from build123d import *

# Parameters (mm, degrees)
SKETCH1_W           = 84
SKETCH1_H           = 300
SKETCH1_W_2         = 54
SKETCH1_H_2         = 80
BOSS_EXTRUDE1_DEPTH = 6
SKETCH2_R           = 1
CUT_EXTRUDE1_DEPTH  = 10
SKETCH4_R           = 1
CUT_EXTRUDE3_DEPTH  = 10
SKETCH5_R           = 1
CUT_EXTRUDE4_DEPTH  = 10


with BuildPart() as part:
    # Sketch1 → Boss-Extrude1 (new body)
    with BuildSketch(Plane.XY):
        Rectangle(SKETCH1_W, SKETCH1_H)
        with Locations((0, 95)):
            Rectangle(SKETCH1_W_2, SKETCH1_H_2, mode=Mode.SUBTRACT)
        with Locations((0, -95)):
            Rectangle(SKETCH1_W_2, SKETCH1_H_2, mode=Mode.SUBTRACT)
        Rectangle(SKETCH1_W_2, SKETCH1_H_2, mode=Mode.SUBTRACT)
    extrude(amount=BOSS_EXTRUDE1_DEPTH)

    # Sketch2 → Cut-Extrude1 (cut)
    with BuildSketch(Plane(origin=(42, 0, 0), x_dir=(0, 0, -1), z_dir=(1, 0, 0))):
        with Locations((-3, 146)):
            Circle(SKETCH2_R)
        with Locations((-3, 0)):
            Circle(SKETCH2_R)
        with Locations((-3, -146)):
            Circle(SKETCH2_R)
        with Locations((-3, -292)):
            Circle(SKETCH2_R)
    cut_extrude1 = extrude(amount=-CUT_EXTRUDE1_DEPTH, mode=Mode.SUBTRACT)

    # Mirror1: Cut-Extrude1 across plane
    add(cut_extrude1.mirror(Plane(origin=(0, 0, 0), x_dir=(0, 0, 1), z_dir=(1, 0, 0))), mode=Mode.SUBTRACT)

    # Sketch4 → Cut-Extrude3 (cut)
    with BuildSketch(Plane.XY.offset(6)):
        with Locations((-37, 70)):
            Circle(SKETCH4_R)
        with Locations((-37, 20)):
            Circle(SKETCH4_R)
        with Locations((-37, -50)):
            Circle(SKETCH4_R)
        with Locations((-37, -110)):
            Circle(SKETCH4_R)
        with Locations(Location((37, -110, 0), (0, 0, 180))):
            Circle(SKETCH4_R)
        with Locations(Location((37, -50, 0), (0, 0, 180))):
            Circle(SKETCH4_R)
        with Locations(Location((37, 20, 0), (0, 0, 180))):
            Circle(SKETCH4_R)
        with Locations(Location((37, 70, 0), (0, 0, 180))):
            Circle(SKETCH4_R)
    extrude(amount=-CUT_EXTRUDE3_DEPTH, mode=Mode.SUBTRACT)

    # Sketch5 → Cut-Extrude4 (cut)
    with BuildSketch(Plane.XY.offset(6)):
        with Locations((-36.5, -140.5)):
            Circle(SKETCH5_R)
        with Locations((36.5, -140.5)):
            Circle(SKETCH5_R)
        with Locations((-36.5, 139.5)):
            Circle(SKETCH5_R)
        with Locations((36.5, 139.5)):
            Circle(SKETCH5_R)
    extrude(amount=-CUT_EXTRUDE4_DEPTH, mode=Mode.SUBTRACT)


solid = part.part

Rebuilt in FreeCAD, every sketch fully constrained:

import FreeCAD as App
import Part
import Sketcher
from FreeCAD import Vector


def add_polygon(sketch, points):
    """Adds a closed chain of lines whose ends are joined by coincident constraints."""
    first, n = sketch.GeometryCount, len(points)
    for a, b in zip(points, points[1:] + points[:1]):
        sketch.addGeometry(Part.LineSegment(App.Vector(*a, 0), App.Vector(*b, 0)), False)
    for i in range(n):
        sketch.addConstraint(Sketcher.Constraint("Coincident", first + i, 2, first + (i + 1) % n, 1))

doc = App.newDocument("Part")
body = doc.addObject("PartDesign::Body", "Body")

sketch1 = doc.addObject("Sketcher::SketchObject", "Sketch")
body.addObject(sketch1)
sketch1.AttachmentSupport = (doc.XY_Plane, [""])
sketch1.MapMode = "FlatFace"
add_polygon(sketch1, [(-42, 150), (-42, -150), (42, -150), (42, 150)])
add_polygon(sketch1, [(27, -135), (-27, -135), (-27, -55), (27, -55)])
add_polygon(sketch1, [(27, -40), (-27, -40), (-27, 40), (27, 40)])
add_polygon(sketch1, [(27, 55), (-27, 55), (-27, 135), (27, 135)])
sketch1.addConstraint([
    Sketcher.Constraint("Vertical", 0),
    Sketcher.Constraint("Horizontal", 1),
    Sketcher.Constraint("Vertical", 2),
    Sketcher.Constraint("Horizontal", 3),
    Sketcher.Constraint("Horizontal", 4),
    Sketcher.Constraint("Vertical", 5),
    Sketcher.Constraint("Horizontal", 6),
    Sketcher.Constraint("Vertical", 7),
    Sketcher.Constraint("Horizontal", 8),
    Sketcher.Constraint("Vertical", 9),
    Sketcher.Constraint("Horizontal", 10),
    Sketcher.Constraint("Vertical", 11),
    Sketcher.Constraint("Horizontal", 12),
    Sketcher.Constraint("Vertical", 13),
    Sketcher.Constraint("Horizontal", 14),
    Sketcher.Constraint("Vertical", 15),
    Sketcher.Constraint("Symmetric", 0, 2, 2, 2, -1, 1),
    Sketcher.Constraint("Symmetric", 8, 2, 10, 2, -1, 1),
    Sketcher.Constraint("Symmetric", 6, 2, 12, 2, -1, 1),
    Sketcher.Constraint("Symmetric", 4, 2, 14, 2, -1, 1),
    Sketcher.Constraint("Vertical", 5, 2, 8, 2),
    Sketcher.Constraint("Vertical", 7, 2, 10, 2),
    Sketcher.Constraint("Equal", 7, 9),
    Sketcher.Constraint("DistanceX", 1, 1, 1, 2, 84.0),
    Sketcher.Constraint("DistanceX", 4, 2, 4, 1, 54.0),
    Sketcher.Constraint("DistanceY", 0, 2, 0, 1, 300.0),
    Sketcher.Constraint("DistanceY", 5, 1, 5, 2, 80.0),
    Sketcher.Constraint("DistanceY", 4, 2, -1, 1, 135.0),
])
pad1 = doc.addObject("PartDesign::Pad", "Pad")
body.addObject(pad1)
pad1.Profile = sketch1
pad1.Length = 6

sketch2 = doc.addObject("Sketcher::SketchObject", "Sketch001")
body.addObject(sketch2)
sketch2.AttachmentSupport = (doc.YZ_Plane, [""])
sketch2.MapMode = "FlatFace"
sketch2.AttachmentOffset = App.Placement(Vector(0, 0, 42), App.Rotation())
sketch2.addGeometry([
    Part.Circle(Vector(146, 3, 0), Vector(0, 0, 1), 1),
    Part.Circle(Vector(0, 3, 0), Vector(0, 0, 1), 1),
    Part.Circle(Vector(-146, 3, 0), Vector(0, 0, 1), 1),
    Part.Circle(Vector(-292, 3, 0), Vector(0, 0, 1), 1),
], False)
sketch2.addConstraint([
    Sketcher.Constraint("Equal", 0, 1),
    Sketcher.Constraint("Equal", 1, 2),
    Sketcher.Constraint("Equal", 2, 3),
    Sketcher.Constraint("Symmetric", 0, 3, 2, 3, -2),
    Sketcher.Constraint("PointOnObject", 1, 3, -2),
    Sketcher.Constraint("Horizontal", 0, 3, 1, 3),
    Sketcher.Constraint("Horizontal", 2, 3, 3, 3),
    Sketcher.Constraint("Diameter", 0, 2.0),
    Sketcher.Constraint("DistanceX", -1, 1, 0, 3, 146.0),
    Sketcher.Constraint("DistanceY", -1, 1, 0, 3, 3.0),
    Sketcher.Constraint("DistanceX", 3, 3, -1, 1, 292.0),
])
pocket1 = doc.addObject("PartDesign::Pocket", "Pocket")
body.addObject(pocket1)
pocket1.Profile = sketch2
pocket1.Length = 10
doc.recompute()

mirrored = doc.addObject("PartDesign::Mirrored", "Mirrored")
body.addObject(mirrored)
mirrored.Originals = [pocket1]
mirrored.MirrorPlane = (doc.YZ_Plane, [""])
body.Tip = mirrored

sketch3 = doc.addObject("Sketcher::SketchObject", "Sketch002")
body.addObject(sketch3)
sketch3.AttachmentSupport = (doc.XY_Plane, [""])
sketch3.MapMode = "FlatFace"
sketch3.AttachmentOffset = App.Placement(Vector(0, 0, 6), App.Rotation())
sketch3.addGeometry([
    Part.Circle(Vector(-37, 70, 0), Vector(0, 0, 1), 1),
    Part.Circle(Vector(-37, 20, 0), Vector(0, 0, 1), 1),
    Part.Circle(Vector(-37, -50, 0), Vector(0, 0, 1), 1),
    Part.Circle(Vector(-37, -110, 0), Vector(0, 0, 1), 1),
    Part.Circle(Vector(37, -110, 0), Vector(0, 0, 1), 1),
    Part.Circle(Vector(37, -50, 0), Vector(0, 0, 1), 1),
    Part.Circle(Vector(37, 20, 0), Vector(0, 0, 1), 1),
    Part.Circle(Vector(37, 70, 0), Vector(0, 0, 1), 1),
], False)
sketch3.addConstraint([
    Sketcher.Constraint("Equal", 0, 1),
    Sketcher.Constraint("Equal", 1, 2),
    Sketcher.Constraint("Equal", 2, 3),
    Sketcher.Constraint("Equal", 3, 4),
    Sketcher.Constraint("Equal", 4, 5),
    Sketcher.Constraint("Equal", 5, 6),
    Sketcher.Constraint("Equal", 6, 7),
    Sketcher.Constraint("Symmetric", 3, 3, 4, 3, -2),
    Sketcher.Constraint("Symmetric", 2, 3, 5, 3, -2),
    Sketcher.Constraint("Symmetric", 1, 3, 6, 3, -2),
    Sketcher.Constraint("Symmetric", 0, 3, 7, 3, -2),
    Sketcher.Constraint("Vertical", 0, 3, 1, 3),
    Sketcher.Constraint("Vertical", 1, 3, 2, 3),
    Sketcher.Constraint("Vertical", 2, 3, 3, 3),
    Sketcher.Constraint("Diameter", 0, 2.0),
    Sketcher.Constraint("DistanceX", 0, 3, -1, 1, 37.0),
    Sketcher.Constraint("DistanceY", -1, 1, 0, 3, 70.0),
    Sketcher.Constraint("DistanceY", -1, 1, 1, 3, 20.0),
    Sketcher.Constraint("DistanceY", 2, 3, -1, 1, 50.0),
    Sketcher.Constraint("DistanceY", 3, 3, -1, 1, 110.0),
])
pocket2 = doc.addObject("PartDesign::Pocket", "Pocket001")
body.addObject(pocket2)
pocket2.Profile = sketch3
pocket2.Length = 10

sketch4 = doc.addObject("Sketcher::SketchObject", "Sketch003")
body.addObject(sketch4)
sketch4.AttachmentSupport = (doc.XY_Plane, [""])
sketch4.MapMode = "FlatFace"
sketch4.AttachmentOffset = App.Placement(Vector(0, 0, 6), App.Rotation())
sketch4.addGeometry([
    Part.Circle(Vector(-36.5, -140.5, 0), Vector(0, 0, 1), 1),
    Part.Circle(Vector(36.5, -140.5, 0), Vector(0, 0, 1), 1),
    Part.Circle(Vector(-36.5, 139.5, 0), Vector(0, 0, 1), 1),
    Part.Circle(Vector(36.5, 139.5, 0), Vector(0, 0, 1), 1),
], False)
sketch4.addConstraint([
    Sketcher.Constraint("Equal", 0, 1),
    Sketcher.Constraint("Equal", 1, 2),
    Sketcher.Constraint("Equal", 2, 3),
    Sketcher.Constraint("Symmetric", 0, 3, 1, 3, -2),
    Sketcher.Constraint("Symmetric", 2, 3, 3, 3, -2),
    Sketcher.Constraint("Vertical", 0, 3, 2, 3),
    Sketcher.Constraint("Diameter", 0, 2.0),
    Sketcher.Constraint("DistanceX", 0, 3, 1, 3, 73.0),
    Sketcher.Constraint("DistanceY", 0, 3, 2, 3, 280.0),
    Sketcher.Constraint("DistanceY", 0, 3, -1, 1, 140.5),
])
pocket3 = doc.addObject("PartDesign::Pocket", "Pocket002")
body.addObject(pocket3)
pocket3.Profile = sketch4
pocket3.Length = 10

doc.recompute()
